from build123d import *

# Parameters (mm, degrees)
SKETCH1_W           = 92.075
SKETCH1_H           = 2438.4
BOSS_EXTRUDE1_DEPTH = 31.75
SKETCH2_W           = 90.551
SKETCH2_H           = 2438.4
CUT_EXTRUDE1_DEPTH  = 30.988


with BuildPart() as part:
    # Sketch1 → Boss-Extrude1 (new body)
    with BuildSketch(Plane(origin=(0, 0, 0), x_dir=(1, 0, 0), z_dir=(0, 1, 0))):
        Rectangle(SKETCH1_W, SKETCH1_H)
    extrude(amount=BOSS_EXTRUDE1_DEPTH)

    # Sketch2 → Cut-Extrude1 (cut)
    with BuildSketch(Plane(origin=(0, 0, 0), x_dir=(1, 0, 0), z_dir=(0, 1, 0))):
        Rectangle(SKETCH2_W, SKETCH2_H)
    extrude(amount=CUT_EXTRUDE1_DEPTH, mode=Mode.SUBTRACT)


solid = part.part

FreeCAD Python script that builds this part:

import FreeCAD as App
import Part
import Sketcher
Q = App.Units.Quantity

doc = App.newDocument("Part")
params = doc.addObject("Spreadsheet::Sheet", "Params")
for row, (alias, value) in enumerate([
    ("sketch1_height", "96 in"),
    ("sketch1_width", "3.625 in"),
    ("pad1_length", "1.25 in"),
    ("sketch2_height", "96 in"),
    ("sketch2_width", "3.565 in"),
    ("pocket1_length", "1.22 in"),
], start=1):
    params.set(f"A{row}", alias)
    params.set(f"B{row}", "=" + value)
    params.setAlias(f"B{row}", alias)

body = doc.addObject("PartDesign::Body", "Body")

# Sketch on XZ plane
sketch1 = doc.addObject("Sketcher::SketchObject", "Sketch")
body.addObject(sketch1)
sketch1.AttachmentSupport = (doc.XZ_Plane, [""])
sketch1.MapMode = "FlatFace"
sketch1.addGeometry([
    Part.LineSegment(App.Vector(-46, -1219, 0), App.Vector(-46, 1219, 0)),
    Part.LineSegment(App.Vector(-46, 1219, 0), App.Vector(46, 1219, 0)),
    Part.LineSegment(App.Vector(46, 1219, 0), App.Vector(46, -1219, 0)),
    Part.LineSegment(App.Vector(46, -1219, 0), App.Vector(-46, -1219, 0)),
], False)
sketch1.addConstraint([
    Sketcher.Constraint("Coincident", 0, 2, 1, 1),
    Sketcher.Constraint("Coincident", 1, 2, 2, 1),
    Sketcher.Constraint("Coincident", 2, 2, 3, 1),
    Sketcher.Constraint("Coincident", 3, 2, 0, 1),
    Sketcher.Constraint("Vertical", 0),
    Sketcher.Constraint("Horizontal", 1),
    Sketcher.Constraint("Vertical", 2),
    Sketcher.Constraint("Horizontal", 3),
    Sketcher.Constraint("Symmetric", 0, 2, 2, 2, -1, 1),
    Sketcher.Constraint("DistanceY", 0, 1, 0, 2, Q("96 in")),
    Sketcher.Constraint("DistanceX", 1, 1, 1, 2, Q("3.625 in")),
])
sketch1.setExpression("Constraints[9]", "Params.sketch1_height")
sketch1.setExpression("Constraints[10]", "Params.sketch1_width")
pad1 = doc.addObject("PartDesign::Pad", "Pad")
body.addObject(pad1)
pad1.Profile = sketch1
pad1.setExpression("Length", "Params.pad1_length")
pad1.Reversed = True

# Sketch on XZ plane
sketch2 = doc.addObject("Sketcher::SketchObject", "Sketch001")
body.addObject(sketch2)
sketch2.AttachmentSupport = (doc.XZ_Plane, [""])
sketch2.MapMode = "FlatFace"
sketch2.addGeometry([
    Part.LineSegment(App.Vector(-45, -1219, 0), App.Vector(-45, 1219, 0)),
    Part.LineSegment(App.Vector(-45, 1219, 0), App.Vector(45, 1219, 0)),
    Part.LineSegment(App.Vector(45, 1219, 0), App.Vector(45, -1219, 0)),
    Part.LineSegment(App.Vector(45, -1219, 0), App.Vector(-45, -1219, 0)),
], False)
sketch2.addConstraint([
    Sketcher.Constraint("Coincident", 0, 2, 1, 1),
    Sketcher.Constraint("Coincident", 1, 2, 2, 1),
    Sketcher.Constraint("Coincident", 2, 2, 3, 1),
    Sketcher.Constraint("Coincident", 3, 2, 0, 1),
    Sketcher.Constraint("Vertical", 0),
    Sketcher.Constraint("Horizontal", 1),
    Sketcher.Constraint("Vertical", 2),
    Sketcher.Constraint("Horizontal", 3),
    Sketcher.Constraint("Symmetric", 0, 2, 2, 2, -1, 1),
    Sketcher.Constraint("DistanceY", 0, 1, 0, 2, Q("96 in")),
    Sketcher.Constraint("DistanceX", 1, 1, 1, 2, Q("3.565 in")),
])
sketch2.setExpression("Constraints[9]", "Params.sketch2_height")
sketch2.setExpression("Constraints[10]", "Params.sketch2_width")
pocket1 = doc.addObject("PartDesign::Pocket", "Pocket")
body.addObject(pocket1)
pocket1.Profile = sketch2
pocket1.setExpression("Length", "Params.pocket1_length")

doc.recompute()
